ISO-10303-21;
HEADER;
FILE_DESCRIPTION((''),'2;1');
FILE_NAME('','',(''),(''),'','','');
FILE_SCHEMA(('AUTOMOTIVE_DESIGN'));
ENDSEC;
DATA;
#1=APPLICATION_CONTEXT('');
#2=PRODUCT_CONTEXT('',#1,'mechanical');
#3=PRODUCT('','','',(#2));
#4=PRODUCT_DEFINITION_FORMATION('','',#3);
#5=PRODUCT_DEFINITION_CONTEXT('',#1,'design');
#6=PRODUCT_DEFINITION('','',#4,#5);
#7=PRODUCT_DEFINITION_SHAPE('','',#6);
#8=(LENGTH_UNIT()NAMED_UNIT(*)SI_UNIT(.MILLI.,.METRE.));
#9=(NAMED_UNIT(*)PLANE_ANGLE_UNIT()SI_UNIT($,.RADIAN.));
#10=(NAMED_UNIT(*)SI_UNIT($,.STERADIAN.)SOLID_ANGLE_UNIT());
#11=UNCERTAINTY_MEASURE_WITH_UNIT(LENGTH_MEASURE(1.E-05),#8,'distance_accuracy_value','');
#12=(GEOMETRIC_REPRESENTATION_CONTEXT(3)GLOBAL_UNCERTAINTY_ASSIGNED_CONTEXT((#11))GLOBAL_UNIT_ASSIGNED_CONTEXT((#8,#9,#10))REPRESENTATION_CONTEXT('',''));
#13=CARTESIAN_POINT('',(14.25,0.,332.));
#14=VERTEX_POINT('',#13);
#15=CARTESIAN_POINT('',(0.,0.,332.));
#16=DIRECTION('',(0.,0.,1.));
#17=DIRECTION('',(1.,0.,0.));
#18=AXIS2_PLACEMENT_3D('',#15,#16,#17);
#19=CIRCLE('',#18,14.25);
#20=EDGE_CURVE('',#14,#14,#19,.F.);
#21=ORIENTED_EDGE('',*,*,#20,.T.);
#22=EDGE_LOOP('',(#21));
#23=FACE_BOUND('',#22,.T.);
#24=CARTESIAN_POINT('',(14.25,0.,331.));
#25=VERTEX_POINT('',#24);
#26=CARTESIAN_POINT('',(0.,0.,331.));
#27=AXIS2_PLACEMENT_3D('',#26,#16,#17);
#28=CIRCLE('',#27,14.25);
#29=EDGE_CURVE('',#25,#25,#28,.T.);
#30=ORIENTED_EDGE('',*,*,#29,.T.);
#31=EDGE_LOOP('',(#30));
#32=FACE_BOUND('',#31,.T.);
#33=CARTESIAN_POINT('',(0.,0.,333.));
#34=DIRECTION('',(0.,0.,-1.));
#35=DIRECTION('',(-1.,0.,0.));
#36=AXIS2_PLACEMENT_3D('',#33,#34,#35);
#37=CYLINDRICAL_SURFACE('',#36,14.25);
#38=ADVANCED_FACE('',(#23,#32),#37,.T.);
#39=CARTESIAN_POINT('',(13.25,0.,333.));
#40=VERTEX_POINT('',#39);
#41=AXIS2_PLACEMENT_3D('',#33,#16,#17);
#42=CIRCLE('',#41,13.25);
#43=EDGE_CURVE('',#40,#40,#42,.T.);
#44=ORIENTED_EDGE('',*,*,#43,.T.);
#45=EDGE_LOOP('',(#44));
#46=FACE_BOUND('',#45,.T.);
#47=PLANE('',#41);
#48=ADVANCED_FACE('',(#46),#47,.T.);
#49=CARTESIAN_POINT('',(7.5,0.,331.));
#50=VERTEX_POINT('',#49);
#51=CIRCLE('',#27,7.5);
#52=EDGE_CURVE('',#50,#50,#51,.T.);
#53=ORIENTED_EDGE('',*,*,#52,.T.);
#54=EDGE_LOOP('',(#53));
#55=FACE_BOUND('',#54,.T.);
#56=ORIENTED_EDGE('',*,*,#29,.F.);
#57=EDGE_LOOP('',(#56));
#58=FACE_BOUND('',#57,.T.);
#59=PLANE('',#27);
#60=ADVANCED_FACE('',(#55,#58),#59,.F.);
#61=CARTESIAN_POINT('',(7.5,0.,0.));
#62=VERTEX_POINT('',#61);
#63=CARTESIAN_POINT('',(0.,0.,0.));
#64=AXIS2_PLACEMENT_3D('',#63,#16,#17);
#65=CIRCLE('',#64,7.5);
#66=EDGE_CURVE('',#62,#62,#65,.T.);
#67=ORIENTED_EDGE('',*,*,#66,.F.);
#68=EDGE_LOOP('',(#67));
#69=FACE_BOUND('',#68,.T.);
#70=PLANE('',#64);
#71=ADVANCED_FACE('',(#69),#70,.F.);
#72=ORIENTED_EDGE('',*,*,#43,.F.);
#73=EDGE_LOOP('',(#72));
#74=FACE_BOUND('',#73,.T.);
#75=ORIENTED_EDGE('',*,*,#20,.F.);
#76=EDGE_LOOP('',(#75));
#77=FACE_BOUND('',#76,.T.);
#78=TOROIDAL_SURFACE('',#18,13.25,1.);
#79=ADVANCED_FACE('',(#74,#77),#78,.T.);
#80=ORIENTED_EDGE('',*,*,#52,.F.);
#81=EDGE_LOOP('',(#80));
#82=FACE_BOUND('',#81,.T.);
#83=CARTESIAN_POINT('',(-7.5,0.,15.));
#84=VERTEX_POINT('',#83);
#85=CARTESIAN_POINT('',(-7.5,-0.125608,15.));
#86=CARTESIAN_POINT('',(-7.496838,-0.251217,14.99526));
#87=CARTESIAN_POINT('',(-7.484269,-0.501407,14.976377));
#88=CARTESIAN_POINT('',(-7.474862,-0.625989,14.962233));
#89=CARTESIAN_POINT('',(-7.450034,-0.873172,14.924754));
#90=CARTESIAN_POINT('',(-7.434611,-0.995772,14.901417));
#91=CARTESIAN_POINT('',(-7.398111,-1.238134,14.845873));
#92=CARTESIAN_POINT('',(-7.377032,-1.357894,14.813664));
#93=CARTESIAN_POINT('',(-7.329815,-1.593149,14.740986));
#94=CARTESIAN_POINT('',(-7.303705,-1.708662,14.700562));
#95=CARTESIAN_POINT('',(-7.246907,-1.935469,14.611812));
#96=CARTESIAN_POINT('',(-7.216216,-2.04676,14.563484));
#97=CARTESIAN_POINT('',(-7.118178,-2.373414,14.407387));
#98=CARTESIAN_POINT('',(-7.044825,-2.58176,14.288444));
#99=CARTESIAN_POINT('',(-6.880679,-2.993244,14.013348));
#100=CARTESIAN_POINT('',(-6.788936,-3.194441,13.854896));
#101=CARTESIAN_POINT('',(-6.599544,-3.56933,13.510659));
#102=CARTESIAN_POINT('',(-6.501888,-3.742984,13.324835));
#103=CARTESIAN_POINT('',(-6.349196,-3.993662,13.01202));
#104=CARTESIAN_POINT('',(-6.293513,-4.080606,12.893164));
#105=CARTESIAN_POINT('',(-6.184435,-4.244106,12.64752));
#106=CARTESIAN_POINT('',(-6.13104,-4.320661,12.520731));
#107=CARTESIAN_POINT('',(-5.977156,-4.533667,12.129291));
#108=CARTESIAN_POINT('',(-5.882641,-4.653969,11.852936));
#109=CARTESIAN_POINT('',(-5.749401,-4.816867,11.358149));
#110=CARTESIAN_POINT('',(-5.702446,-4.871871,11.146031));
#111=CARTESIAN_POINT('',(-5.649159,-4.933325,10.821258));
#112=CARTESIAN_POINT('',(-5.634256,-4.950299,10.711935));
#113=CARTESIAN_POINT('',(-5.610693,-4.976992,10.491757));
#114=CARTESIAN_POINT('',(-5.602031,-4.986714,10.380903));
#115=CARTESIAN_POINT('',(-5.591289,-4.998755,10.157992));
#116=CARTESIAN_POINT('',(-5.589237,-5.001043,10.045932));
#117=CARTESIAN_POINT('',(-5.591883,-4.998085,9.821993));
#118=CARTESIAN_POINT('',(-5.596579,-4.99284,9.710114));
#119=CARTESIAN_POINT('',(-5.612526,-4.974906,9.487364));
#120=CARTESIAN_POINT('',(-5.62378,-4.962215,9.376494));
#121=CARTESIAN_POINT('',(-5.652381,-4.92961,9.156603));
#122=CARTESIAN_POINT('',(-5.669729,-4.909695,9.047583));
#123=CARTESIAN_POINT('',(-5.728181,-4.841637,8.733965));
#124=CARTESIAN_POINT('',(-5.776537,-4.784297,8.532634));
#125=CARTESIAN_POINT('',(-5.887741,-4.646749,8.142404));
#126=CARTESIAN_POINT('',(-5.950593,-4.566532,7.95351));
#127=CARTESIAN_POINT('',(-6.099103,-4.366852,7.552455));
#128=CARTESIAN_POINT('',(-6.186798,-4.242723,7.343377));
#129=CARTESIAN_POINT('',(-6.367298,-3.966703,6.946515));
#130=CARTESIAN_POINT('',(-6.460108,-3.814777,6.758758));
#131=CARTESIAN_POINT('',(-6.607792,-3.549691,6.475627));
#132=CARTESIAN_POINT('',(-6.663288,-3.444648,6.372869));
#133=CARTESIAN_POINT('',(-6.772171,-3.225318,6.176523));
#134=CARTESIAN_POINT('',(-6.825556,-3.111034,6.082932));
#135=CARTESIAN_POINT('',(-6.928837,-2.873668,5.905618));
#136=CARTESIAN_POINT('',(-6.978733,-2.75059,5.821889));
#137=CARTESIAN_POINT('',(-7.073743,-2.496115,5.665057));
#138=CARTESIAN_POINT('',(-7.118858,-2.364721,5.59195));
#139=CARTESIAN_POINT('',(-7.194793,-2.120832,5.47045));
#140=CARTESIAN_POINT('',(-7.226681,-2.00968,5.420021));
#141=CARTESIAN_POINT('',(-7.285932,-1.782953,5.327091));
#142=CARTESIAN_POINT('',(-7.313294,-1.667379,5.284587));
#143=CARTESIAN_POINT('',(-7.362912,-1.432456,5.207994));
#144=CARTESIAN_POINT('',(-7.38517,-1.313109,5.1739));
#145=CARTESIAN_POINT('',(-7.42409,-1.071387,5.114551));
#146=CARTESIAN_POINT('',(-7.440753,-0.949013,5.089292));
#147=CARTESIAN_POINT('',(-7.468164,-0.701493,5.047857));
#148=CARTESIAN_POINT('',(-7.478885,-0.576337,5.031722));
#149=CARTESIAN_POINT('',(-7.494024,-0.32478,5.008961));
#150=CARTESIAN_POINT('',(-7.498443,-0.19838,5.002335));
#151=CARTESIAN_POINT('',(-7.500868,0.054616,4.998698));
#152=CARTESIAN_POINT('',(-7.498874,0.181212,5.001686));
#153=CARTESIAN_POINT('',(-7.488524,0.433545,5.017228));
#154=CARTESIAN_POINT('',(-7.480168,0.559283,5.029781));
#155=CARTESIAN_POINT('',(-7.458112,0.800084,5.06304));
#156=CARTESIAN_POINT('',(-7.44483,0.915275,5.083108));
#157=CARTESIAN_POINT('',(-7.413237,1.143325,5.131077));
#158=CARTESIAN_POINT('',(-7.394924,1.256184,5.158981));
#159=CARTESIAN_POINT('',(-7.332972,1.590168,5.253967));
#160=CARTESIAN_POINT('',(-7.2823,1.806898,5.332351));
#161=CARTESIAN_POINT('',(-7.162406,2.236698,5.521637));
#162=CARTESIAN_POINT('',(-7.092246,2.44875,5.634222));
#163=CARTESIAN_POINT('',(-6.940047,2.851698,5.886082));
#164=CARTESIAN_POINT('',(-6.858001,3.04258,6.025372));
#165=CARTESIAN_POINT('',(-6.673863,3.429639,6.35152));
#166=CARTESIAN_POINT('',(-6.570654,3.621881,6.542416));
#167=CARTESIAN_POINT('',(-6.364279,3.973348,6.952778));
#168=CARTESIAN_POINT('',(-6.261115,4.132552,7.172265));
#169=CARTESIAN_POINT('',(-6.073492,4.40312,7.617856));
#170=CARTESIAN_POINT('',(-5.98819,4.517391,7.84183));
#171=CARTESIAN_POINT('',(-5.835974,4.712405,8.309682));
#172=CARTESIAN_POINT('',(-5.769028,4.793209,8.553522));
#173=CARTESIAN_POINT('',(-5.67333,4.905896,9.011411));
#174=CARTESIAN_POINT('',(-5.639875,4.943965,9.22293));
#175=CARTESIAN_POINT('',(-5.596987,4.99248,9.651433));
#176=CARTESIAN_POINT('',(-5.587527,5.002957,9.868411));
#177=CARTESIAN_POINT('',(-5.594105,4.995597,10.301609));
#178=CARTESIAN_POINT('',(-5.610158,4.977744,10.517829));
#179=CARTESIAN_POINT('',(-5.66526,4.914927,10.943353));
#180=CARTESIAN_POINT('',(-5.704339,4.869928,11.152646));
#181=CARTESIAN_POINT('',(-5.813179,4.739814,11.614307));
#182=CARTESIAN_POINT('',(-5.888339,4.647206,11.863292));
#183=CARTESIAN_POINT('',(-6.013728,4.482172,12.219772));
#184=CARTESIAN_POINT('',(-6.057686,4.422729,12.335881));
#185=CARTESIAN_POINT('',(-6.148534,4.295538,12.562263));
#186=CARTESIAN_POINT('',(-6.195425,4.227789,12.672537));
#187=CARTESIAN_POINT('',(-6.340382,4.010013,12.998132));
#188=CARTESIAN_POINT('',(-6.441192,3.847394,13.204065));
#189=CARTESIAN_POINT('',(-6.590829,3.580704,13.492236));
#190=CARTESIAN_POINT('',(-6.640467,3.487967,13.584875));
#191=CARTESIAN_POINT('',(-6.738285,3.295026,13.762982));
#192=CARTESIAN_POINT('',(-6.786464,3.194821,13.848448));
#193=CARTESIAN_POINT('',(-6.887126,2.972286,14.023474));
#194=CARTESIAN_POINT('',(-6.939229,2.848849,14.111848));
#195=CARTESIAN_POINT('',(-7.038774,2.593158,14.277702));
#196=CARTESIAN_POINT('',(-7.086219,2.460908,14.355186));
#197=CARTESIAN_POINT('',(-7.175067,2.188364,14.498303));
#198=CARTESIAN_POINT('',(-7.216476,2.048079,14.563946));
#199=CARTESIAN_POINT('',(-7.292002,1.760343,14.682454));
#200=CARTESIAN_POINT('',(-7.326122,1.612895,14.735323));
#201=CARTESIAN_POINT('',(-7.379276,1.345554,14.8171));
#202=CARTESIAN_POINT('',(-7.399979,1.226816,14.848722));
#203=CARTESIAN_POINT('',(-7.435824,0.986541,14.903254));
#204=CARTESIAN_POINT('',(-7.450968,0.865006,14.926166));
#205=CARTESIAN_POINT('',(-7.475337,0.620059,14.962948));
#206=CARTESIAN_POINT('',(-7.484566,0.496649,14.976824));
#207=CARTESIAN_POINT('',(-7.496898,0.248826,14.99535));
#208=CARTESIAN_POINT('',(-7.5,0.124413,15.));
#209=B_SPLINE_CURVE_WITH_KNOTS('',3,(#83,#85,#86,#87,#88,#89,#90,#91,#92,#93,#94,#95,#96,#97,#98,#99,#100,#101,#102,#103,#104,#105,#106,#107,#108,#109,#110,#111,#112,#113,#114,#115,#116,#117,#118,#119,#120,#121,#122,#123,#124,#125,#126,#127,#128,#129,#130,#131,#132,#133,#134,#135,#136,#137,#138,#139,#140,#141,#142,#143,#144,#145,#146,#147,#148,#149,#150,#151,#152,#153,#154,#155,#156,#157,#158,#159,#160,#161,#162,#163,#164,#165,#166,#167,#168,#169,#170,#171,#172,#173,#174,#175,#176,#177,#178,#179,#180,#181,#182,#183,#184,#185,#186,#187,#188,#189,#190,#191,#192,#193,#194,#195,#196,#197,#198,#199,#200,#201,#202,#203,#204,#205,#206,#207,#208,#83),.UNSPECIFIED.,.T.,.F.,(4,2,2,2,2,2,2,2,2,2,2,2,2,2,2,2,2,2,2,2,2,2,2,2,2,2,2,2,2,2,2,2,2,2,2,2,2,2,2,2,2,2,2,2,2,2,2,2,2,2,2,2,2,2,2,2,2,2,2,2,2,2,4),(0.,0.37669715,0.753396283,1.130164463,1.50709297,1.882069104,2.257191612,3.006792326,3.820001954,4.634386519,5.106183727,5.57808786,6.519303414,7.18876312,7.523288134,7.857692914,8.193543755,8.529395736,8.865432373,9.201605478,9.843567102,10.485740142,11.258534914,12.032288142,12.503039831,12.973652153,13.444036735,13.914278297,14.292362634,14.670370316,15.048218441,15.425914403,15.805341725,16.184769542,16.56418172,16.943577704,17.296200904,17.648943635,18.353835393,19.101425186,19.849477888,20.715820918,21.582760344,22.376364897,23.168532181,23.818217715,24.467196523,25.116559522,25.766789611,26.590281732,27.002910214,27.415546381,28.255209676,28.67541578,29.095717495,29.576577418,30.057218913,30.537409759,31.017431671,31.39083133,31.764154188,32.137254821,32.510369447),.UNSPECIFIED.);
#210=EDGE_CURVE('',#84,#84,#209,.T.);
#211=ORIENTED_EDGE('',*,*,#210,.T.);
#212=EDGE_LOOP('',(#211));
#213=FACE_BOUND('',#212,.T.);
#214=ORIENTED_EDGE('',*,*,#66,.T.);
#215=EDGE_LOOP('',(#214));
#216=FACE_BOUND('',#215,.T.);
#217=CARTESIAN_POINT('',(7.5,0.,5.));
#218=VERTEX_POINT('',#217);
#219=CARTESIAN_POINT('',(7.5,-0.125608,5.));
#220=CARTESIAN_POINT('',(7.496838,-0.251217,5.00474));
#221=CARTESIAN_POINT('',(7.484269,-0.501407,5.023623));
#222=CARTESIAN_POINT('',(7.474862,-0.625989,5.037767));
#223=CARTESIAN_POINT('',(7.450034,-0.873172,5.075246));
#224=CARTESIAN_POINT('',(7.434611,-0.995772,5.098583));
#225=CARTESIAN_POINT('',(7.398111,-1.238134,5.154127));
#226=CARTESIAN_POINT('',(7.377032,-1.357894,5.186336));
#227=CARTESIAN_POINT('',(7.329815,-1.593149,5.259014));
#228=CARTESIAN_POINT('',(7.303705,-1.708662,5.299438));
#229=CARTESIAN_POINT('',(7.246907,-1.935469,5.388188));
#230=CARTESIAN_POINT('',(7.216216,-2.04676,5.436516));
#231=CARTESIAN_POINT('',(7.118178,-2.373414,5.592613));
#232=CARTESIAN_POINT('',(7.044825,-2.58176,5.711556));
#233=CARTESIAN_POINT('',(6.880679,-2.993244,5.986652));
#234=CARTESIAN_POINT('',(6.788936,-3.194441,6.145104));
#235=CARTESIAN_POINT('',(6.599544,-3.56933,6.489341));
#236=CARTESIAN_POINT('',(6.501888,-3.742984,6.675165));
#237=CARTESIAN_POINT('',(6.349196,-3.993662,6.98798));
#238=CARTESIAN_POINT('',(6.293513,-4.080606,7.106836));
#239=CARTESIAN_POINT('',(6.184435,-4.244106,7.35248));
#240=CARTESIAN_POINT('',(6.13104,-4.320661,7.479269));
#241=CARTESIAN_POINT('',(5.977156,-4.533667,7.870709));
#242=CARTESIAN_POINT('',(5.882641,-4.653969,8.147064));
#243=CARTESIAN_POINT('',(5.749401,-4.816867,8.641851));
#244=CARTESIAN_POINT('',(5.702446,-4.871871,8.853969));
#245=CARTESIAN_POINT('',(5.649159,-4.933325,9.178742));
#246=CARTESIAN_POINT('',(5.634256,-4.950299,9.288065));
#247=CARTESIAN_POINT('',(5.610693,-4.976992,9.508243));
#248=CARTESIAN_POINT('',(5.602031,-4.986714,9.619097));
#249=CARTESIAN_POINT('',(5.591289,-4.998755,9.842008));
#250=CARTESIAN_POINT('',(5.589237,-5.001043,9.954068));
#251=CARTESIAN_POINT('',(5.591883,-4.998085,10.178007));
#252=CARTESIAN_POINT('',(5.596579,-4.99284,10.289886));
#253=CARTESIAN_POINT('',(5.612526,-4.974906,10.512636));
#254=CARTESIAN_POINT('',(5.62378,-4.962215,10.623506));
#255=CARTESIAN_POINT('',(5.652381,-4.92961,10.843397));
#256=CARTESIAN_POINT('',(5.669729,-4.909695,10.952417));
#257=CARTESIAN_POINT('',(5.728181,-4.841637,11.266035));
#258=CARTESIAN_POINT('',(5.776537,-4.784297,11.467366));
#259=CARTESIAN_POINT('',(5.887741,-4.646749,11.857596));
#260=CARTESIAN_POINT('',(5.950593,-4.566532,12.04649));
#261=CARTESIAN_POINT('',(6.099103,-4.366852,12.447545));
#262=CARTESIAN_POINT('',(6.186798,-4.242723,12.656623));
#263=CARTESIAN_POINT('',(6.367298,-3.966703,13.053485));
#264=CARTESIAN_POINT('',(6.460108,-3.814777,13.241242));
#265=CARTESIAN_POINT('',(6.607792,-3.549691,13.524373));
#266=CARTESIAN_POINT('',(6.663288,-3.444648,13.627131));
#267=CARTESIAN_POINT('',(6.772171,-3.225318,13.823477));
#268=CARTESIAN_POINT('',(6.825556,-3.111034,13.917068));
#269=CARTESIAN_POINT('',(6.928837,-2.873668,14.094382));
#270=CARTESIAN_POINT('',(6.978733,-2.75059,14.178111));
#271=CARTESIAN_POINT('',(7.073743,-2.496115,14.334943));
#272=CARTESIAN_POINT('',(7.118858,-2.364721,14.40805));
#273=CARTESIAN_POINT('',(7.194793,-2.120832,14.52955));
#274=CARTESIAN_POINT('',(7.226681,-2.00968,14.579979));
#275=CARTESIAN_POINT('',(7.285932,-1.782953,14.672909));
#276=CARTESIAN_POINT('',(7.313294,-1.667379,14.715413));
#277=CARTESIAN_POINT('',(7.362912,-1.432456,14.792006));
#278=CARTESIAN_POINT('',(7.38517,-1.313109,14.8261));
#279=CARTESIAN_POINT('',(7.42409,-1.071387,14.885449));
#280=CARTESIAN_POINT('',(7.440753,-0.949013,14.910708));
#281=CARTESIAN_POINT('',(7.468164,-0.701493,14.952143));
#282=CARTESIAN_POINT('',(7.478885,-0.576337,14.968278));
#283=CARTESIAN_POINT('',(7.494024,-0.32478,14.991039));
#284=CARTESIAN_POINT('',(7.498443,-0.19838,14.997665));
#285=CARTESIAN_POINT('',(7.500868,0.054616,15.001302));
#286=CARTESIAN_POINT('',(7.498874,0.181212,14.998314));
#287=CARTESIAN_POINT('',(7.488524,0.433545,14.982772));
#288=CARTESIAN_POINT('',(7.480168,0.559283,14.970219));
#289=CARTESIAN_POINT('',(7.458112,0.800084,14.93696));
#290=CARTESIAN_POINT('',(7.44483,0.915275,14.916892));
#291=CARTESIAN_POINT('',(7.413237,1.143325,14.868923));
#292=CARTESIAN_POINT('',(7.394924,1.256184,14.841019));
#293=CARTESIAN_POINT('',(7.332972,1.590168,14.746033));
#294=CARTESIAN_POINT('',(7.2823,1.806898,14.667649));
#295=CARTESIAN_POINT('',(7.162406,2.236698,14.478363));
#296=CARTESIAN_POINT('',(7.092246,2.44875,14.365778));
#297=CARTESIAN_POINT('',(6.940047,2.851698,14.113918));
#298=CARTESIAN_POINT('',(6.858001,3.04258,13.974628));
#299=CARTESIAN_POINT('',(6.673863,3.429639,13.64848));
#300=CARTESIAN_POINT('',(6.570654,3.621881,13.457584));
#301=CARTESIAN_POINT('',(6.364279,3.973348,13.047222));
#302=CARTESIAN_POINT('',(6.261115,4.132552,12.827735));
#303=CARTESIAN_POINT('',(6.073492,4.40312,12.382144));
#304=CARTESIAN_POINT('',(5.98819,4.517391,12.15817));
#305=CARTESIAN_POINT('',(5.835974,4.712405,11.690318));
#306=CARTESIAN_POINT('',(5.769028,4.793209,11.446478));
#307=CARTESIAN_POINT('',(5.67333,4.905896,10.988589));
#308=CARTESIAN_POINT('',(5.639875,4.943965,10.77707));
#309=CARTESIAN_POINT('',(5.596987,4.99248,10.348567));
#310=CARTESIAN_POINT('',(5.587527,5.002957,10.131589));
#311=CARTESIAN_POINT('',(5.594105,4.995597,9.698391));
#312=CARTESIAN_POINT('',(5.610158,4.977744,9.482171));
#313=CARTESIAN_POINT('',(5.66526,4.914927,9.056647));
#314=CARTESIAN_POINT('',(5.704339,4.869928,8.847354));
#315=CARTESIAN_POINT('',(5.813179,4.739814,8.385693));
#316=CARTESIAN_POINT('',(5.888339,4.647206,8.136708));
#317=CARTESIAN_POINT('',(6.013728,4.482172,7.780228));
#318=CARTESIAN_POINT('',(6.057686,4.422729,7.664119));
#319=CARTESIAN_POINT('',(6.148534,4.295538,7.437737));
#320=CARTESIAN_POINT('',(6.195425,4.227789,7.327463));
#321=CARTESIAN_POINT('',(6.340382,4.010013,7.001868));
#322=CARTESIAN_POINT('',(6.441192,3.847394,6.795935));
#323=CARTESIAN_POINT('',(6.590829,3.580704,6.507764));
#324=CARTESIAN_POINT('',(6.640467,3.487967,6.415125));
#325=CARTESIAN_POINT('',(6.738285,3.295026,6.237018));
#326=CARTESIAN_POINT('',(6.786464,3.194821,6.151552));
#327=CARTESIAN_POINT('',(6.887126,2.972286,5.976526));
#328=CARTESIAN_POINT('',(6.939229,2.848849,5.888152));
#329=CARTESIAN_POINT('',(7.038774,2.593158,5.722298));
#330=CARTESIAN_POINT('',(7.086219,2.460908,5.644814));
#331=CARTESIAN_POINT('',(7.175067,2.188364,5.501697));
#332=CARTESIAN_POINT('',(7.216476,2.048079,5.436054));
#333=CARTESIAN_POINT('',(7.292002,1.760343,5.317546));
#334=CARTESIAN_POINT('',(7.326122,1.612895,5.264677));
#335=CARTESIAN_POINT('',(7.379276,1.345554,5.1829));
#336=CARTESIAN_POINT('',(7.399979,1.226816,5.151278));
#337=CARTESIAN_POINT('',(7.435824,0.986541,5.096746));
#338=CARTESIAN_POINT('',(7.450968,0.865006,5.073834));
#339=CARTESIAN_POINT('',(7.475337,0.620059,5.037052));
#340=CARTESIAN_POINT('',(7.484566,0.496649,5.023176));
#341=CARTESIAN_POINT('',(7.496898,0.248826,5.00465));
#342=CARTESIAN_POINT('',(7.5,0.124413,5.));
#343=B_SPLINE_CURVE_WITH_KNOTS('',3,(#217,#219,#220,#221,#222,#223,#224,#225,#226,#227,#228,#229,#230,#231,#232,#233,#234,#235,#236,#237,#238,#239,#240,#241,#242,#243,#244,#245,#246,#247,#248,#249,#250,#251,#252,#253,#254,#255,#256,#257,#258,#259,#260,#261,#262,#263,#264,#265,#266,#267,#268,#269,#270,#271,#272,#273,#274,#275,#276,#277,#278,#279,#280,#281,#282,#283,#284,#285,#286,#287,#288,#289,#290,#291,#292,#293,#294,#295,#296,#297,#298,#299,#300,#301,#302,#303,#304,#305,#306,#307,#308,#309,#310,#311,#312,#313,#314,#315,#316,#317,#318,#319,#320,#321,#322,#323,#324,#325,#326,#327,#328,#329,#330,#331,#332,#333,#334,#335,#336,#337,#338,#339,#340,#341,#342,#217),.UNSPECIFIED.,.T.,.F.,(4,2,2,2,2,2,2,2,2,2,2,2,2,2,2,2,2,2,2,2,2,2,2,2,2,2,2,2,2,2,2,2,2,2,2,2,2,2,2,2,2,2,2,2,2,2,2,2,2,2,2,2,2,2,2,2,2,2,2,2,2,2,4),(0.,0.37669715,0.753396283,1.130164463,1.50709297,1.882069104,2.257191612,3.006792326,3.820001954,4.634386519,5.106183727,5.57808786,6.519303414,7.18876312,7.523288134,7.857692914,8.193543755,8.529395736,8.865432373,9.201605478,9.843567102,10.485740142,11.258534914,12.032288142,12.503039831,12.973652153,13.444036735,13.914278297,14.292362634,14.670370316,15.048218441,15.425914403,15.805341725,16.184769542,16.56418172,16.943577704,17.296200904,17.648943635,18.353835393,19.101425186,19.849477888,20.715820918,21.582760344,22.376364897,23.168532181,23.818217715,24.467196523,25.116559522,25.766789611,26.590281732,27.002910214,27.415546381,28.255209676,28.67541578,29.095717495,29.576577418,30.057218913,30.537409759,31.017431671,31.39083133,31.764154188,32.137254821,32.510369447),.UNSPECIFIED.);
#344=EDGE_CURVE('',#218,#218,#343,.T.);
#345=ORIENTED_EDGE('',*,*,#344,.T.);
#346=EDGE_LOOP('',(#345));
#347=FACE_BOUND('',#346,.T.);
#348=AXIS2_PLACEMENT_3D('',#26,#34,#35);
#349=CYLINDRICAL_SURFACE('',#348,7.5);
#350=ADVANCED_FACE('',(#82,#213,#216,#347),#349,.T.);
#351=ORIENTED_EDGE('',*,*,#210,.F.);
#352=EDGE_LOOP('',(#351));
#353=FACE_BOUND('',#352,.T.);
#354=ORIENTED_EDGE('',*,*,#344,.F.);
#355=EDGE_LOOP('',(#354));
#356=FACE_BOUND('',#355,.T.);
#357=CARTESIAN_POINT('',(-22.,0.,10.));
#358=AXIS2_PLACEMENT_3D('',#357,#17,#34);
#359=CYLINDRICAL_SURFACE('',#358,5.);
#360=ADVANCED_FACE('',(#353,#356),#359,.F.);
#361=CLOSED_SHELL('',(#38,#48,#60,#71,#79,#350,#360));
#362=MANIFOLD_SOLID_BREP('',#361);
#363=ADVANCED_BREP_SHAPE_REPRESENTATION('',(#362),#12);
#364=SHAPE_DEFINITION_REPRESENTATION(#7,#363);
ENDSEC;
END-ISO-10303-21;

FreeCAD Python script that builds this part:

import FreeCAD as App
import Part
import Sketcher
from FreeCAD import Vector


def edges_at(feature, points):
    """Names of the edges that pass closest to the given points."""
    edges = feature.Shape.Edges
    near = lambda p: min(range(len(edges)), key=lambda i: edges[i].distToShape(Part.Vertex(*p))[0])
    return sorted({f"Edge{near(p) + 1}" for p in points})

doc = App.newDocument("Part")
body = doc.addObject("PartDesign::Body", "Body")

# Sketch on XY plane
sketch1 = doc.addObject("Sketcher::SketchObject", "Sketch")
body.addObject(sketch1)
sketch1.AttachmentSupport = (doc.XY_Plane, [""])
sketch1.MapMode = "FlatFace"
sketch1.addGeometry(Part.Circle(Vector(0, 0, 0), Vector(0, 0, 1), 8), False)
sketch1.addConstraint(Sketcher.Constraint("Coincident", 0, 3, -1, 1))
sketch1.addConstraint(Sketcher.Constraint("Diameter", 0, 15.0))
pad1 = doc.addObject("PartDesign::Pad", "Pad")
body.addObject(pad1)
pad1.Profile = sketch1
pad1.Length = 331

# Sketch on XY plane
sketch2 = doc.addObject("Sketcher::SketchObject", "Sketch001")
body.addObject(sketch2)
sketch2.AttachmentSupport = (doc.XY_Plane, [""])
sketch2.MapMode = "FlatFace"
sketch2.AttachmentOffset = App.Placement(Vector(0, 0, 331), App.Rotation())
sketch2.addGeometry(Part.Circle(Vector(0, 0, 0), Vector(0, 0, 1), 14), False)
sketch2.addConstraint(Sketcher.Constraint("Coincident", 0, 3, -1, 1))
sketch2.addConstraint(Sketcher.Constraint("Diameter", 0, 28.5))
pad2 = doc.addObject("PartDesign::Pad", "Pad001")
body.addObject(pad2)
pad2.Profile = sketch2
pad2.Length = 2
doc.recompute()

fillet = doc.addObject("PartDesign::Fillet", "Fillet")
body.addObject(fillet)
fillet.Base = (pad2, edges_at(pad2, [(-14.25, 0, 333)]))
fillet.Radius = 1

# Sketch on YZ plane
sketch3 = doc.addObject("Sketcher::SketchObject", "Sketch002")
body.addObject(sketch3)
sketch3.AttachmentSupport = (doc.YZ_Plane, [""])
sketch3.MapMode = "FlatFace"
sketch3.addGeometry(Part.Circle(Vector(0, 10, 0), Vector(0, 0, 1), 5), False)
sketch3.addConstraint(Sketcher.Constraint("PointOnObject", 0, 3, -2))
sketch3.addConstraint(Sketcher.Constraint("Diameter", 0, 10.0))
sketch3.addConstraint(Sketcher.Constraint("DistanceY", -1, 1, 0, 3, 10.0))
pocket1 = doc.addObject("PartDesign::Pocket", "Pocket")
body.addObject(pocket1)
pocket1.Profile = sketch3
pocket1.Length = 44
pocket1.Midplane = True

doc.recompute()
